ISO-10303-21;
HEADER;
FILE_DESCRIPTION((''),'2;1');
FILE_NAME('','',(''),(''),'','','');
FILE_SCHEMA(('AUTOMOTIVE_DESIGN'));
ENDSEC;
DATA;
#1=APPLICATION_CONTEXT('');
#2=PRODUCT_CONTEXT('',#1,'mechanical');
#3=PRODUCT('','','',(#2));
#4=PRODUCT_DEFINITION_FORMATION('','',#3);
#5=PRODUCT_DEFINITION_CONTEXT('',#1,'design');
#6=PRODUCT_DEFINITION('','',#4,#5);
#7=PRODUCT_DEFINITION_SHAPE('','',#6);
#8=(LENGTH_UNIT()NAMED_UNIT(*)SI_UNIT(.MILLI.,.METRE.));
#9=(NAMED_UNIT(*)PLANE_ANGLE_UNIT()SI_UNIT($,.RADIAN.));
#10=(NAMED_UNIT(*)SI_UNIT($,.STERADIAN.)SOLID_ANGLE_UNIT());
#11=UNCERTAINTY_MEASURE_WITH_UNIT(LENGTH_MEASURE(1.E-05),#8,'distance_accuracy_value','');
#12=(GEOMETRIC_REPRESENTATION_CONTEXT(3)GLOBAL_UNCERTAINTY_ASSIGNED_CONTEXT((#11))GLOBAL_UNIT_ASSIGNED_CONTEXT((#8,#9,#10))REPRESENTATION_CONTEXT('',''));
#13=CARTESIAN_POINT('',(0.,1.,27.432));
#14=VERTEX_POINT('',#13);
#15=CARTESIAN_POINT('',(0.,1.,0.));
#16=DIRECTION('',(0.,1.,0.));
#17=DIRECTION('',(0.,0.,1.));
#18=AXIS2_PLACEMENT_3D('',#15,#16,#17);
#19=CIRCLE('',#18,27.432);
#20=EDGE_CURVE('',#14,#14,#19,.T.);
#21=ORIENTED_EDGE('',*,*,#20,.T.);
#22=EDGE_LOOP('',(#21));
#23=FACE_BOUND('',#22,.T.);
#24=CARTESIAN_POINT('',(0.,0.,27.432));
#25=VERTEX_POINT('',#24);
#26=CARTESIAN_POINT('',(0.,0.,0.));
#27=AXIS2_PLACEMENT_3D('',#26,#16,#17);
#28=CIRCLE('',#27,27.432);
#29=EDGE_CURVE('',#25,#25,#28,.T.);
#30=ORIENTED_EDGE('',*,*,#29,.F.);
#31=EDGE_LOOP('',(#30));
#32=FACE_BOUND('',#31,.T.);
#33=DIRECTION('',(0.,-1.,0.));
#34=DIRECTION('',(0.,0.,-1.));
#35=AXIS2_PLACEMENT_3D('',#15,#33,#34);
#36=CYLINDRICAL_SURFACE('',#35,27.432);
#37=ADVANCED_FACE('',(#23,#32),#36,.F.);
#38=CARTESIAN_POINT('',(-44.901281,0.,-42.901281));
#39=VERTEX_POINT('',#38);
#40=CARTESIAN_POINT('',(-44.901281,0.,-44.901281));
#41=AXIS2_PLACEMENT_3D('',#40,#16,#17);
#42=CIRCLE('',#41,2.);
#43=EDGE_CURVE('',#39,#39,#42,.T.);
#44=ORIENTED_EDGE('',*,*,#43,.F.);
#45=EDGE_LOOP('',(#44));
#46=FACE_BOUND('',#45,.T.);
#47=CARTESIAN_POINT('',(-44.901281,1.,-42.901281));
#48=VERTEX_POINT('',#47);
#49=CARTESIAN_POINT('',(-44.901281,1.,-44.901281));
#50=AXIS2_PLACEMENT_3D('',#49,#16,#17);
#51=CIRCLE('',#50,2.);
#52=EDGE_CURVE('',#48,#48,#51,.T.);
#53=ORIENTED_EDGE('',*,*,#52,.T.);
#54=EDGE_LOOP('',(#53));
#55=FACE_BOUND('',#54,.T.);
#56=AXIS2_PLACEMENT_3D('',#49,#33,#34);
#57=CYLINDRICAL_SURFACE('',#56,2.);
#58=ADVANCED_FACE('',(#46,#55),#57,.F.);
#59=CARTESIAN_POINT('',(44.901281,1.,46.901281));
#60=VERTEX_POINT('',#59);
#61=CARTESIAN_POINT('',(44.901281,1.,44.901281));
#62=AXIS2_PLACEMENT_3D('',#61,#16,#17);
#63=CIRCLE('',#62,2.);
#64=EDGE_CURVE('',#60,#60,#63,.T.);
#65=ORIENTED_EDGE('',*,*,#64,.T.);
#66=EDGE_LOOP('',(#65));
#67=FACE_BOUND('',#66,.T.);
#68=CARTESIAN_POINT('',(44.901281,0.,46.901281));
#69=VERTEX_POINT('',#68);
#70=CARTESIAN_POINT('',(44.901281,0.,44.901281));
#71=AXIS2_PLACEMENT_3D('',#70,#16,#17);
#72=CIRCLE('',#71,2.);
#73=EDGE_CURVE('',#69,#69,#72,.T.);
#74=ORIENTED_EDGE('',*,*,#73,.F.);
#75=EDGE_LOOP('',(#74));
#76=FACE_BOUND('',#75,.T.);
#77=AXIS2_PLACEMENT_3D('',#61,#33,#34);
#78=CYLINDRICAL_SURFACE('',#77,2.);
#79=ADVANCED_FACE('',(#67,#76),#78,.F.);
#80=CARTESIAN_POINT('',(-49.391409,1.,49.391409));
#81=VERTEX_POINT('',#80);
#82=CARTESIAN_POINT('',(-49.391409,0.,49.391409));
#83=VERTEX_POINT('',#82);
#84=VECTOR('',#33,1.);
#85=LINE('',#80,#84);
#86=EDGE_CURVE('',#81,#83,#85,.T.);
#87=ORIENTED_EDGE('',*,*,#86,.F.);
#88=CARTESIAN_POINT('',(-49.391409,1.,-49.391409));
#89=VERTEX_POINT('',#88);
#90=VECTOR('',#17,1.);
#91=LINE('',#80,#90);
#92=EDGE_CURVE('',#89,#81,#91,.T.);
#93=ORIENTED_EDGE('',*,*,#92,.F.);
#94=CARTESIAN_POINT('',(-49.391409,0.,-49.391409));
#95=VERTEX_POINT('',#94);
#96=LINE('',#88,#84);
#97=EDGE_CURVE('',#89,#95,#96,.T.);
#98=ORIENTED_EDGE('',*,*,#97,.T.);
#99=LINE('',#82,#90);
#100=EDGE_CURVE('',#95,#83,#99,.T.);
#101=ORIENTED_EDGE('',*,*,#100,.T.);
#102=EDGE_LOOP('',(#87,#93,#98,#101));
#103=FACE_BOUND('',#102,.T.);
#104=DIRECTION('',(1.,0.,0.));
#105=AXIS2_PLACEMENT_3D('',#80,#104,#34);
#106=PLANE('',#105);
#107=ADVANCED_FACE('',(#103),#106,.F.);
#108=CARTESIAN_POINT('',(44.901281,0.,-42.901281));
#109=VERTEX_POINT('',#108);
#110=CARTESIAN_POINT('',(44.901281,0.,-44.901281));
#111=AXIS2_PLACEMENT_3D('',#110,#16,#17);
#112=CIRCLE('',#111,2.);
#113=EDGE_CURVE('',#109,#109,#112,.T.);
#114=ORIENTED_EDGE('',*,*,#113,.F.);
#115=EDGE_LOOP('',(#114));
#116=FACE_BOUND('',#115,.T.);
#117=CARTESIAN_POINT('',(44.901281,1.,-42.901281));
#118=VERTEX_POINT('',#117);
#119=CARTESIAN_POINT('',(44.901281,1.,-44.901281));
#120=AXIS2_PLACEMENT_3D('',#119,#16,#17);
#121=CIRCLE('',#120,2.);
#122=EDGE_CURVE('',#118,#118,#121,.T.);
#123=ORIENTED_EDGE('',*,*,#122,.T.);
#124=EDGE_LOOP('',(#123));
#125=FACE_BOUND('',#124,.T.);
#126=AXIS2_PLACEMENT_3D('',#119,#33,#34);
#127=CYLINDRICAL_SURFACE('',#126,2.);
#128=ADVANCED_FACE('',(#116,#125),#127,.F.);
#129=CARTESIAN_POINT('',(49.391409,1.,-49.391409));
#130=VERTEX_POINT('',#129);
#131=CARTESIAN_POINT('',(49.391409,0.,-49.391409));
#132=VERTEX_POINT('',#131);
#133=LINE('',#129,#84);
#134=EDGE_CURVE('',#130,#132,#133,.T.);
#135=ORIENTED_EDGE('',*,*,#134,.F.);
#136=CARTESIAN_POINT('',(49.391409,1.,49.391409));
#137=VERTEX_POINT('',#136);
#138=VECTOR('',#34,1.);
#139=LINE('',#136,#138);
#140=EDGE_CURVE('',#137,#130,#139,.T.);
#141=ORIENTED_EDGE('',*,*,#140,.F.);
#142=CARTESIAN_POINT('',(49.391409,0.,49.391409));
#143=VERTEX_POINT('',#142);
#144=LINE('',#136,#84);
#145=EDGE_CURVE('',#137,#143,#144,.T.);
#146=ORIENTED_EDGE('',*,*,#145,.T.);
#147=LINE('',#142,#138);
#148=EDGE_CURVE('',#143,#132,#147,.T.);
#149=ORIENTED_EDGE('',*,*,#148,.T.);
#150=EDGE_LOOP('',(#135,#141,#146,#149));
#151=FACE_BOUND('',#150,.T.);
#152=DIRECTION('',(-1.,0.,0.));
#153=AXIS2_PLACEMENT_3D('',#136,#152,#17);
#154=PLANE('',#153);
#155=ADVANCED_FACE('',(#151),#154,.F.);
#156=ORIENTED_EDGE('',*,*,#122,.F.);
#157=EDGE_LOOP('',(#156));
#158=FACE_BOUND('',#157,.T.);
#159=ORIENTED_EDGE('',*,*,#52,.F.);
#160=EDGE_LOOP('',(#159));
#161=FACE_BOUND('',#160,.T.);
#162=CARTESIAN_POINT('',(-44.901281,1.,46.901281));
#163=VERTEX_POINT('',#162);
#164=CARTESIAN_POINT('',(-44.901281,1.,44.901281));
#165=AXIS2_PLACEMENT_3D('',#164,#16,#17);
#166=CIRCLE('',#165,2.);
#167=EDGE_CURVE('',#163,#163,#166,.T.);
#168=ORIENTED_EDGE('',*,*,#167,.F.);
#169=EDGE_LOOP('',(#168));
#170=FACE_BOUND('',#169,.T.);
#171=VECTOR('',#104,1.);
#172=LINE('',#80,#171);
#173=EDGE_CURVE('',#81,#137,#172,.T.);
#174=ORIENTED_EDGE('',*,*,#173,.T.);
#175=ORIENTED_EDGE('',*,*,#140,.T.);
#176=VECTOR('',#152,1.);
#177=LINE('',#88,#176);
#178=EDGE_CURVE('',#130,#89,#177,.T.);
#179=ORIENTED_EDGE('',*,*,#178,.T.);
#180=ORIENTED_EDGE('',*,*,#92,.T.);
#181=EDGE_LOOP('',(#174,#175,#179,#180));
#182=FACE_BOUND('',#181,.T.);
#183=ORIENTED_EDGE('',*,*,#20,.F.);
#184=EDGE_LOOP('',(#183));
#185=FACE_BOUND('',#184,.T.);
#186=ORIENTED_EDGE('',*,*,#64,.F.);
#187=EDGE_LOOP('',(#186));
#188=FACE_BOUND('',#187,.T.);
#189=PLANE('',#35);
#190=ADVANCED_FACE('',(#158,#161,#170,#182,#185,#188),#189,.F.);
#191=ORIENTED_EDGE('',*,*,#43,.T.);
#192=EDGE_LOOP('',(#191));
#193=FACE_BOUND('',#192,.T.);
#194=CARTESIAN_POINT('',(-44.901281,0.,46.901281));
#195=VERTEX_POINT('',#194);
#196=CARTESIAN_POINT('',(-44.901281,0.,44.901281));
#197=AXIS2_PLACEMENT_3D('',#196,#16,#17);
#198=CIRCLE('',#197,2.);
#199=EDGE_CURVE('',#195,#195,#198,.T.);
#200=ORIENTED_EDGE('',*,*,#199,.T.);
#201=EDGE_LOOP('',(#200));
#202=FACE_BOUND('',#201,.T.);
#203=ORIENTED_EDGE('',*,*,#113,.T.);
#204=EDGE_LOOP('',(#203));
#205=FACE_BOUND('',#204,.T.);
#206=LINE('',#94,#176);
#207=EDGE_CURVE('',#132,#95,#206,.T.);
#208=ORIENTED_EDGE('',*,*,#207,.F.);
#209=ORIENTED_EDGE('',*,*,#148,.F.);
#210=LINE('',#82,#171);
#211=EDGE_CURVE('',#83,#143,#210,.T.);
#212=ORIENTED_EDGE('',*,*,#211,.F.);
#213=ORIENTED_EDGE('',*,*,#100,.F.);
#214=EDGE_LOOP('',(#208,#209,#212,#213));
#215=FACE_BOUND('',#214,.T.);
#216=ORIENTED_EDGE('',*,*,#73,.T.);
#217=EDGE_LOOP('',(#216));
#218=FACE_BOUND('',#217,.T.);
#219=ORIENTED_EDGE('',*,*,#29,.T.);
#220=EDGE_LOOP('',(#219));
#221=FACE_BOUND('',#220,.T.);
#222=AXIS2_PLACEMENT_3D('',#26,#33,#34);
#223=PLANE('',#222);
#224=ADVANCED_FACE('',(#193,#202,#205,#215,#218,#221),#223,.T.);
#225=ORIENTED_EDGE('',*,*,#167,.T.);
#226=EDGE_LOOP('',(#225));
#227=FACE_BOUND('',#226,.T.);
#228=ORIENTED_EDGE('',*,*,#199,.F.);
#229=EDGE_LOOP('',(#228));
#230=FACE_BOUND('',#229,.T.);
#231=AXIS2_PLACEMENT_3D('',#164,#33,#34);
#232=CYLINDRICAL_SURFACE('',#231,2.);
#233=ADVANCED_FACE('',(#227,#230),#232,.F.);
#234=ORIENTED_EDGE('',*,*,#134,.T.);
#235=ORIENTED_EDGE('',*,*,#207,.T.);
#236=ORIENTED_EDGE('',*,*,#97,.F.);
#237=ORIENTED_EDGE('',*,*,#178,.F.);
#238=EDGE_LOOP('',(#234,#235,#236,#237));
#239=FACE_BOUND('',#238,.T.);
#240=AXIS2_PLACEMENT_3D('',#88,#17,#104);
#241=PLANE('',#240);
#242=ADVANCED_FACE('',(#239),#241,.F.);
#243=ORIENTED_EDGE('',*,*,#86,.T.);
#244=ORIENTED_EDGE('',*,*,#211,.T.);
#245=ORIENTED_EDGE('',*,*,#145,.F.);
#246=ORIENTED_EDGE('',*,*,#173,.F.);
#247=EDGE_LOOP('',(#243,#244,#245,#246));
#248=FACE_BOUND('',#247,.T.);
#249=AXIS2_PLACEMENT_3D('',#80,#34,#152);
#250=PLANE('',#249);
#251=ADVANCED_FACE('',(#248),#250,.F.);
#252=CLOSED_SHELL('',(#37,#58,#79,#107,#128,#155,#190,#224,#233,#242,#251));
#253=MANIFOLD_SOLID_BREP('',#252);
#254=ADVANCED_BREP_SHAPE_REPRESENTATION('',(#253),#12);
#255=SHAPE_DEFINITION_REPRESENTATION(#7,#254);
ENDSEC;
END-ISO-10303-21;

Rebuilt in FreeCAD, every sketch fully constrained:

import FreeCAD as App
import Part
import Sketcher
from FreeCAD import Vector
Q = App.Units.Quantity


def add_polygon(sketch, points):
    """Adds a closed chain of lines whose ends are joined by coincident constraints."""
    first, n = sketch.GeometryCount, len(points)
    for a, b in zip(points, points[1:] + points[:1]):
        sketch.addGeometry(Part.LineSegment(App.Vector(*a, 0), App.Vector(*b, 0)), False)
    for i in range(n):
        sketch.addConstraint(Sketcher.Constraint("Coincident", first + i, 2, first + (i + 1) % n, 1))

doc = App.newDocument("Part")
body = doc.addObject("PartDesign::Body", "Body")

# Sketch on XZ plane
sketch1 = body.newObject("Sketcher::SketchObject", "Sketch")
sketch1.AttachmentSupport = (doc.getObject("XZ_Plane"), [""])
sketch1.MapMode = "FlatFace"
add_polygon(sketch1, [(-49, -49), (-49, 49), (49, 49), (49, -49)])  # lines 0-3
sketch1.addConstraint([
    Sketcher.Constraint("Vertical", 0),
    Sketcher.Constraint("Horizontal", 1),
    Sketcher.Constraint("Vertical", 2),
    Sketcher.Constraint("Horizontal", 3),
    Sketcher.Constraint("Symmetric", 0, 2, 2, 2, -1, 1),
    Sketcher.Constraint("Equal", 3, 0),
    Sketcher.Constraint("DistanceX", 1, 1, 1, 2, Q("98.782817 mm")),
])
pad1 = body.newObject("PartDesign::Pad", "Pad")
pad1.Profile = sketch1
pad1.Length = 1
pad1.Reversed = True

# Sketch on XZ plane
sketch2 = body.newObject("Sketcher::SketchObject", "Sketch001")
sketch2.AttachmentSupport = (doc.getObject("XZ_Plane"), [""])
sketch2.MapMode = "FlatFace"
sketch2.addGeometry([
    Part.Circle(Vector(44.9, -44.9, 0), Vector(0, 0, 1), 2),
    Part.Circle(Vector(44.9, 44.9, 0), Vector(0, 0, 1), 2),
    Part.Circle(Vector(-44.9, 44.9, 0), Vector(0, 0, 1), 2),
    Part.Circle(Vector(-44.9, -44.9, 0), Vector(0, 0, 1), 2),
], False)
sketch2.addConstraint([
    Sketcher.Constraint("Equal", 0, 1),
    Sketcher.Constraint("Equal", 1, 2),
    Sketcher.Constraint("Equal", 2, 3),
    Sketcher.Constraint("Symmetric", 0, 3, 2, 3, -1, 1),
    Sketcher.Constraint("Symmetric", 1, 3, 3, 3, -1, 1),
    Sketcher.Constraint("Symmetric", 1, 3, 2, 3, -2),
    Sketcher.Constraint("Diameter", 0, Q("4 mm")),
    Sketcher.Constraint("DistanceX", -1, 1, 0, 3, Q("44.901281 mm")),
    Sketcher.Constraint("DistanceY", 0, 3, -1, 1, Q("44.901281 mm")),
])
pocket1 = body.newObject("PartDesign::Pocket", "Pocket")
pocket1.Profile = sketch2
pocket1.Type = "ThroughAll"

# Sketch on XZ plane
sketch3 = body.newObject("Sketcher::SketchObject", "Sketch002")
sketch3.AttachmentSupport = (doc.getObject("XZ_Plane"), [""])
sketch3.MapMode = "FlatFace"
sketch3.addGeometry(Part.Circle(Vector(0, 0, 0), Vector(0, 0, 1), 27), False)
sketch3.addConstraint([
    Sketcher.Constraint("Coincident", 0, 3, -1, 1),
    Sketcher.Constraint("Diameter", 0, Q("54.864 mm")),
])
pocket2 = body.newObject("PartDesign::Pocket", "Pocket001")
pocket2.Profile = sketch3
pocket2.Type = "ThroughAll"

doc.recompute()
